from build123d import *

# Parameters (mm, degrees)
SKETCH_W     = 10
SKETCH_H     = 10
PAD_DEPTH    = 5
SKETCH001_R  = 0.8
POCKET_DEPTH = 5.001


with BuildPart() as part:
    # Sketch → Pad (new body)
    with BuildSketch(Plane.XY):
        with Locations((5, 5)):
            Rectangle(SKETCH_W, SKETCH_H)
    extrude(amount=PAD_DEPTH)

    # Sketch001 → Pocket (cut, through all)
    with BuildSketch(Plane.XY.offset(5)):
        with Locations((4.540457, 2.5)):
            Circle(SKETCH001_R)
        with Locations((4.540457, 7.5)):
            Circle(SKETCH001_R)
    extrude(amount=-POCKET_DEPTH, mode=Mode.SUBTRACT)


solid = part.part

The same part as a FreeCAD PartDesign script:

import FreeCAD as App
import Part
import Sketcher

V = App.Vector

doc = App.newDocument("Part")
body = doc.addObject("PartDesign::Body", "Body")

sketch1 = doc.addObject("Sketcher::SketchObject", "Sketch")
body.addObject(sketch1)
sketch1.AttachmentSupport = (doc.XY_Plane, [""])
sketch1.MapMode = "FlatFace"
sketch1.addGeometry([
    Part.LineSegment(V(0, 10, 0), V(0, 0, 0)),
    Part.LineSegment(V(0, 0, 0), V(10, 0, 0)),
    Part.LineSegment(V(10, 0, 0), V(10, 10, 0)),
    Part.LineSegment(V(10, 10, 0), V(0, 10, 0)),
], False)
sketch1.addConstraint([
    Sketcher.Constraint("Coincident", 0, 2, 1, 1),
    Sketcher.Constraint("Coincident", 1, 2, 2, 1),
    Sketcher.Constraint("Coincident", 2, 2, 3, 1),
    Sketcher.Constraint("Coincident", 3, 2, 0, 1),
    Sketcher.Constraint("Vertical", 0),
    Sketcher.Constraint("Horizontal", 1),
    Sketcher.Constraint("Vertical", 2),
    Sketcher.Constraint("Horizontal", 3),
    Sketcher.Constraint("Coincident", 0, 2, -1, 1),
    Sketcher.Constraint("Equal", 3, 0),
    Sketcher.Constraint("DistanceX", 1, 1, 1, 2, 10.0),
])
pad1 = doc.addObject("PartDesign::Pad", "Pad")
body.addObject(pad1)
pad1.Profile = sketch1
pad1.Length = 5

sketch2 = doc.addObject("Sketcher::SketchObject", "Sketch001")
body.addObject(sketch2)
sketch2.AttachmentSupport = (doc.XY_Plane, [""])
sketch2.MapMode = "FlatFace"
sketch2.AttachmentOffset = App.Placement(V(0, 0, 5), App.Rotation())
sketch2.addGeometry([
    Part.Circle(V(4.5, 2.5, 0), V(0, 0, 1), 0.8),
    Part.Circle(V(4.5, 7.5, 0), V(0, 0, 1), 0.8),
], False)
sketch2.addConstraint([
    Sketcher.Constraint("Equal", 0, 1),
    Sketcher.Constraint("Vertical", 0, 3, 1, 3),
    Sketcher.Constraint("Diameter", 0, 1.6),
    Sketcher.Constraint("DistanceY", 0, 3, 1, 3, 5.0),
    Sketcher.Constraint("DistanceY", -1, 1, 0, 3, 2.5),
    Sketcher.Constraint("DistanceX", -1, 1, 0, 3, 4.540457),
])
pocket1 = doc.addObject("PartDesign::Pocket", "Pocket")
body.addObject(pocket1)
pocket1.Profile = sketch2
pocket1.Type = "ThroughAll"

doc.recompute()
